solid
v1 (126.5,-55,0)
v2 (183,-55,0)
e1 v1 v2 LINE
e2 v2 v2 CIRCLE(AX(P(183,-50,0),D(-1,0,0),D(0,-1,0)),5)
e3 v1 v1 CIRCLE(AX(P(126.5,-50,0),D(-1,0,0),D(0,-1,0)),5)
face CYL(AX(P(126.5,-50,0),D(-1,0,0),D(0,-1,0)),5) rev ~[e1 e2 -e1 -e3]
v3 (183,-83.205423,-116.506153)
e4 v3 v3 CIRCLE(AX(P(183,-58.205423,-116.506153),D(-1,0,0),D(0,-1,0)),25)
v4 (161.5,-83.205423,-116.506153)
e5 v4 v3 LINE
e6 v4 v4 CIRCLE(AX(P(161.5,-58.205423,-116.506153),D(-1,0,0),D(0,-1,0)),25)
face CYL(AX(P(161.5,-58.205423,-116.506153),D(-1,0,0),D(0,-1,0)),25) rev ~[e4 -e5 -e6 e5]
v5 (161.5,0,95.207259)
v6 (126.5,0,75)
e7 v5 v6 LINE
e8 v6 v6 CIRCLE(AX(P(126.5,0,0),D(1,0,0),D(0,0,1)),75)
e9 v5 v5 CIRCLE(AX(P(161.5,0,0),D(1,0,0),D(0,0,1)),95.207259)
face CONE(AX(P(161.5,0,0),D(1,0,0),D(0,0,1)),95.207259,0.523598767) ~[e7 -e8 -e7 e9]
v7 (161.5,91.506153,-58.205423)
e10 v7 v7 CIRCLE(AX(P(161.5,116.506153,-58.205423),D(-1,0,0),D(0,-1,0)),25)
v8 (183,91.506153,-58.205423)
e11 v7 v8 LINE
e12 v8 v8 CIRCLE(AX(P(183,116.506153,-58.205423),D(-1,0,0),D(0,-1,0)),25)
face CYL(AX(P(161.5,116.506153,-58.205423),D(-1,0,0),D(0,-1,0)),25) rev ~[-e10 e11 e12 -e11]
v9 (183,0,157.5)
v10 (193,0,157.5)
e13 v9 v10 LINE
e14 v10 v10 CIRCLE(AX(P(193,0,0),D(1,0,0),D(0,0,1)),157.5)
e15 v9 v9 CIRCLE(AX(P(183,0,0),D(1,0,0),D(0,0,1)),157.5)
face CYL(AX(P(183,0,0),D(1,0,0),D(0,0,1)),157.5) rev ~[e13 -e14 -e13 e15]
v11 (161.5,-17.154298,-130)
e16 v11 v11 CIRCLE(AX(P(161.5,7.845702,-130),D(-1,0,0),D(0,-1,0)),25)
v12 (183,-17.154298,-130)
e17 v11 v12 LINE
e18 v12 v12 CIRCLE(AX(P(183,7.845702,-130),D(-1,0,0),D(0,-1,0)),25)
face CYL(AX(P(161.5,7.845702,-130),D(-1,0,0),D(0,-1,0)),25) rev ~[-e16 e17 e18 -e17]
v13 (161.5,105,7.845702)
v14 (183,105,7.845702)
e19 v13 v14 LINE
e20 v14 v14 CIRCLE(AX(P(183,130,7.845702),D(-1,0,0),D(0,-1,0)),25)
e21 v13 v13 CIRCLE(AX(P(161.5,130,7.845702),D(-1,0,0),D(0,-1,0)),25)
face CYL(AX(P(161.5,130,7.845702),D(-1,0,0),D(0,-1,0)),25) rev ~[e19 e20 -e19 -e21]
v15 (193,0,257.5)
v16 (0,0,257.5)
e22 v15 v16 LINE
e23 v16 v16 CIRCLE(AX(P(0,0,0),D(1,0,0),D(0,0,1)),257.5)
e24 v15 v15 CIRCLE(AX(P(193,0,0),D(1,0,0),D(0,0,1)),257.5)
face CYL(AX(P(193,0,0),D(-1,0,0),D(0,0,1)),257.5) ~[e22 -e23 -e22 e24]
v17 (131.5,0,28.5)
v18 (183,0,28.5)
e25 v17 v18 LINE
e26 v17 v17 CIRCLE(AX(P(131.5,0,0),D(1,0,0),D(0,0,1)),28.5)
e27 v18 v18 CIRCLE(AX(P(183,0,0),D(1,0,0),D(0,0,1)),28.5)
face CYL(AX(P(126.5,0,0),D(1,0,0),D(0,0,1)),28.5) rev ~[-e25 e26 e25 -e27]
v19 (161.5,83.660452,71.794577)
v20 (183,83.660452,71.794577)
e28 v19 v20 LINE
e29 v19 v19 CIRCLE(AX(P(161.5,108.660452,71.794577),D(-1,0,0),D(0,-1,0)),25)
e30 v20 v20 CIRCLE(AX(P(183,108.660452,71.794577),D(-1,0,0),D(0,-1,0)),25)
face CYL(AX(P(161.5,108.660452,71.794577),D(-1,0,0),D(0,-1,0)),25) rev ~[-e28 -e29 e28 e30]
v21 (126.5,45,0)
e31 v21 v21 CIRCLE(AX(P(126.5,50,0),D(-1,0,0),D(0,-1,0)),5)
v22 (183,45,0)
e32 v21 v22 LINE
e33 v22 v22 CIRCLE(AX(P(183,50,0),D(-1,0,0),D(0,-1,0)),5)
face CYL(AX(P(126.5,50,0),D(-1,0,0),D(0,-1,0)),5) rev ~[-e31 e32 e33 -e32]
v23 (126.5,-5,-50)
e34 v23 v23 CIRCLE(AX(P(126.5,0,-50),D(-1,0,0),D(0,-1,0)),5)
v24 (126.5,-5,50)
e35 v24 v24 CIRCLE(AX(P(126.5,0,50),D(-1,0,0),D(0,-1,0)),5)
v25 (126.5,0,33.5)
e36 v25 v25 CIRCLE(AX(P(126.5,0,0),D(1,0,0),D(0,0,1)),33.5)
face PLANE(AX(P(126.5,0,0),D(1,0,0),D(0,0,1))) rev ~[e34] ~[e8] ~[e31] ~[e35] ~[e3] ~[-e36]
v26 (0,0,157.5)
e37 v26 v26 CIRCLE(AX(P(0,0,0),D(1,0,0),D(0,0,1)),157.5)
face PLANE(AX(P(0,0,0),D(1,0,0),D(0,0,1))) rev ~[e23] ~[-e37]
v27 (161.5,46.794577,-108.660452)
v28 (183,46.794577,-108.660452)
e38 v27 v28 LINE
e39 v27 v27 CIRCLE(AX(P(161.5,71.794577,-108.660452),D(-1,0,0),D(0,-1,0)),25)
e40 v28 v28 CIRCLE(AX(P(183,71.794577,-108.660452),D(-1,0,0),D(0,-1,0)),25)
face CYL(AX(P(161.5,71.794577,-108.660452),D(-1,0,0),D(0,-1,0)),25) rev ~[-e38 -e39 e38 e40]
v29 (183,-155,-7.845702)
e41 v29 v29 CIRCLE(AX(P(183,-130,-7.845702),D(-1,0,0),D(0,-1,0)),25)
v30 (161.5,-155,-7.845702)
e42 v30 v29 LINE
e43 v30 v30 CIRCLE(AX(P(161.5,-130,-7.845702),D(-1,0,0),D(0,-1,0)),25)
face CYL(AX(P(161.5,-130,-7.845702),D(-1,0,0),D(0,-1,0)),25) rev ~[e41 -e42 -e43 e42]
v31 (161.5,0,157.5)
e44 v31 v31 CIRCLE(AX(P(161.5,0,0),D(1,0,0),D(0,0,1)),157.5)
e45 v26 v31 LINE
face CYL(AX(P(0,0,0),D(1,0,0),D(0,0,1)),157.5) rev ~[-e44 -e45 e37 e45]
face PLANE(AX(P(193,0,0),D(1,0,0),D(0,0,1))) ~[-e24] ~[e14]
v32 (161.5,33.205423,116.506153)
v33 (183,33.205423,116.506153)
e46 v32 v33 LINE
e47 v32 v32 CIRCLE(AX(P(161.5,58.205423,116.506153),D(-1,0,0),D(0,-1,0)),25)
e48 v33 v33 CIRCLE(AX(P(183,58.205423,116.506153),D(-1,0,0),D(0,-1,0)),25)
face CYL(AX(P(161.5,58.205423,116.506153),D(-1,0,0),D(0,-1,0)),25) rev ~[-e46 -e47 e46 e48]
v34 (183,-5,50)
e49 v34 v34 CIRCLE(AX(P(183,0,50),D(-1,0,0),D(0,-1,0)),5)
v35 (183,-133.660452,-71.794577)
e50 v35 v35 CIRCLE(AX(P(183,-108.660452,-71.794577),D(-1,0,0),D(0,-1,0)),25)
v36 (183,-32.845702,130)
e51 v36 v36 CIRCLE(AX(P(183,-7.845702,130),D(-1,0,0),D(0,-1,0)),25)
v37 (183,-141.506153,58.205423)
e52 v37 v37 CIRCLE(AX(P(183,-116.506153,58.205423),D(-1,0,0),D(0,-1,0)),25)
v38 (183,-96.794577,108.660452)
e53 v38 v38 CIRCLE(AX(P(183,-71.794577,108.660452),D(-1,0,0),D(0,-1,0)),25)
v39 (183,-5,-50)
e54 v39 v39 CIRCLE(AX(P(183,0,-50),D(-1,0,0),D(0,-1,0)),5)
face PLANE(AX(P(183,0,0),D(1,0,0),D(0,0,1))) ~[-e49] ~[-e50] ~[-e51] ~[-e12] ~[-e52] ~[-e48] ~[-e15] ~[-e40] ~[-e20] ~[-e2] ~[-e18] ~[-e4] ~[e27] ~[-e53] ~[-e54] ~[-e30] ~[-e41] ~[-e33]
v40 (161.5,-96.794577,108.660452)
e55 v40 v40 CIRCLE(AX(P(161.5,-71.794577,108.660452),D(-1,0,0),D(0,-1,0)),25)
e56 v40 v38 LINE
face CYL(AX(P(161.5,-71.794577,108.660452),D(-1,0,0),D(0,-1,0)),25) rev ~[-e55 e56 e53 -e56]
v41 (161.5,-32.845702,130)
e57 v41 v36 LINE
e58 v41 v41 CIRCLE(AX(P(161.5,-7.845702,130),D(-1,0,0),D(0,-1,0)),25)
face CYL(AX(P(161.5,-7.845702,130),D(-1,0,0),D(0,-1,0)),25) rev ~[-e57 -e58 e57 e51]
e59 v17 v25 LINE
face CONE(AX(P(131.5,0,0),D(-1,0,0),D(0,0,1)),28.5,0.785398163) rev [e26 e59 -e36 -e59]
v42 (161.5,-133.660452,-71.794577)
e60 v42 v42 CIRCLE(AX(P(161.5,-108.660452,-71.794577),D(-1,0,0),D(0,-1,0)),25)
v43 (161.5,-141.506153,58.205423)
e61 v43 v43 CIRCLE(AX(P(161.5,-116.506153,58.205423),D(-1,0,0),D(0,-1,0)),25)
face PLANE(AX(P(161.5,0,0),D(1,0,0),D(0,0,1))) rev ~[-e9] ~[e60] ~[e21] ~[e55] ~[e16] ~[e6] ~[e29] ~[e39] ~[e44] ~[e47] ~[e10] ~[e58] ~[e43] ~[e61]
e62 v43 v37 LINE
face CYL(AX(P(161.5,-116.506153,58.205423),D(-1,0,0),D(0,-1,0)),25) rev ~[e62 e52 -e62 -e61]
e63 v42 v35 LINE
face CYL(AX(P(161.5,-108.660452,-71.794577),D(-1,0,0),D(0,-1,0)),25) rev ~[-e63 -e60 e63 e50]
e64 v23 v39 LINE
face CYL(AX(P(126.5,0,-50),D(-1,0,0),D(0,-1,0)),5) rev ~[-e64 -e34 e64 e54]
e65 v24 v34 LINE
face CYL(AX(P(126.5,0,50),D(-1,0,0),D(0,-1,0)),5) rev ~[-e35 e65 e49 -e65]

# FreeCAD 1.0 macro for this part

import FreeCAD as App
import Part
import Sketcher

V = App.Vector
Q = App.Units.Quantity


def edges_at(feature, points):
    """Names of the edges that pass closest to the given points."""
    edges = feature.Shape.Edges
    near = lambda p: min(range(len(edges)), key=lambda i: edges[i].distToShape(Part.Vertex(*p))[0])
    return sorted({f"Edge{near(p) + 1}" for p in points})


def add_polygon(sketch, points):
    """Adds a closed chain of lines whose ends are joined by coincident constraints."""
    first, n = sketch.GeometryCount, len(points)
    for a, b in zip(points, points[1:] + points[:1]):
        sketch.addGeometry(Part.LineSegment(App.Vector(*a, 0), App.Vector(*b, 0)), False)
    for i in range(n):
        sketch.addConstraint(Sketcher.Constraint("Coincident", first + i, 2, first + (i + 1) % n, 1))

doc = App.newDocument("Part")
body = doc.addObject("PartDesign::Body", "Body")

sketch1 = body.newObject("Sketcher::SketchObject", "Sketch")
sketch1.AttachmentSupport = (doc.getObject("XZ_Plane"), [""])
sketch1.MapMode = "FlatFace"
add_polygon(sketch1, [(193, 157.5), (193, 257.5), (0, 257.5), (0, 157.5), (161.5, 157.5), (161.5, 95.207259), (126.5, 75), (126.5, 28.5), (183, 28.5), (183, 157.5)])
sketch1.addConstraint([
    Sketcher.Constraint("Vertical", 0),
    Sketcher.Constraint("Horizontal", 1),
    Sketcher.Constraint("Vertical", 2),
    Sketcher.Constraint("Horizontal", 3),
    Sketcher.Constraint("Vertical", 4),
    Sketcher.Constraint("Vertical", 6),
    Sketcher.Constraint("Horizontal", 7),
    Sketcher.Constraint("Vertical", 8),
    Sketcher.Constraint("Horizontal", 9),
    Sketcher.Constraint("PointOnObject", 1, 2, -2),
    Sketcher.Constraint("Horizontal", 3, 2, 8, 2),
    Sketcher.Constraint("DistanceX", 1, 2, 1, 1, 193.0),
    Sketcher.Constraint("DistanceX", 9, 1, 9, 2, 10.0),
    Sketcher.Constraint("DistanceY", 0, 1, 0, 2, 100.0),
    Sketcher.Constraint("DistanceY", 8, 1, 8, 2, 129.0),
    Sketcher.Constraint("Angle", 5, Q("-150.000001 deg")),
    Sketcher.Constraint("DistanceX", 3, 1, 3, 2, 161.5),
    Sketcher.Constraint("DistanceX", 7, 1, 7, 2, 56.5),
    Sketcher.Constraint("DistanceY", 6, 2, 6, 1, 46.5),
    Sketcher.Constraint("DistanceY", -1, 1, 5, 2, 75.0),
])
revolution = body.newObject("PartDesign::Revolution", "Revolution")
revolution.Profile = sketch1
revolution.ReferenceAxis = (sketch1, ["H_Axis"])
revolution.Angle = 360

sketch2 = body.newObject("Sketcher::SketchObject", "Sketch001")
sketch2.AttachmentSupport = (doc.getObject("YZ_Plane"), [""])
sketch2.MapMode = "FlatFace"
sketch2.AttachmentOffset = App.Placement(V(0, 0, 161.5), App.Rotation())
sketch2.addGeometry([
    Part.Circle(V(-7.845702, 130, 0), V(0, 0, 1), 25),
    Part.Circle(V(58.205423, 116.506153, 0), V(0, 0, 1), 25),
    Part.Circle(V(108.660452, 71.794577, 0), V(0, 0, 1), 25),
    Part.Circle(V(130, 7.845702, 0), V(0, 0, 1), 25),
    Part.Circle(V(116.506153, -58.205423, 0), V(0, 0, 1), 25),
    Part.Circle(V(71.794577, -108.660452, 0), V(0, 0, 1), 25),
    Part.Circle(V(7.845702, -130, 0), V(0, 0, 1), 25),
    Part.Circle(V(-58.205423, -116.506153, 0), V(0, 0, 1), 25),
    Part.Circle(V(-108.660452, -71.794577, 0), V(0, 0, 1), 25),
    Part.Circle(V(-130, -7.845702, 0), V(0, 0, 1), 25),
    Part.Circle(V(-116.506153, 58.205423, 0), V(0, 0, 1), 25),
    Part.Circle(V(-71.794577, 108.660452, 0), V(0, 0, 1), 25),
], False)
sketch2.addConstraint([
    Sketcher.Constraint("Equal", 0, 1),
    Sketcher.Constraint("Equal", 1, 2),
    Sketcher.Constraint("Equal", 2, 3),
    Sketcher.Constraint("Equal", 3, 4),
    Sketcher.Constraint("Equal", 4, 5),
    Sketcher.Constraint("Equal", 5, 6),
    Sketcher.Constraint("Equal", 6, 7),
    Sketcher.Constraint("Equal", 7, 8),
    Sketcher.Constraint("Equal", 8, 9),
    Sketcher.Constraint("Equal", 9, 10),
    Sketcher.Constraint("Equal", 10, 11),
    Sketcher.Constraint("Symmetric", 0, 3, 6, 3, -1, 1),
    Sketcher.Constraint("Symmetric", 1, 3, 7, 3, -1, 1),
    Sketcher.Constraint("Symmetric", 2, 3, 8, 3, -1, 1),
    Sketcher.Constraint("Symmetric", 3, 3, 9, 3, -1, 1),
    Sketcher.Constraint("Symmetric", 4, 3, 10, 3, -1, 1),
    Sketcher.Constraint("Symmetric", 5, 3, 11, 3, -1, 1),
    Sketcher.Constraint("Diameter", 0, 50.0),
    Sketcher.Constraint("DistanceY", -1, 1, 0, 3, 130.0),
    Sketcher.Constraint("DistanceX", -1, 1, 3, 3, 130.0),
    Sketcher.Constraint("DistanceY", 4, 3, 2, 3, 130.0),
    Sketcher.Constraint("DistanceX", 7, 3, 5, 3, 130.0),
    Sketcher.Constraint("DistanceX", 0, 3, 3, 3, 137.845702),
    Sketcher.Constraint("DistanceX", 2, 3, 4, 3, 7.845701),
    Sketcher.Constraint("DistanceY", 6, 3, 3, 3, 137.845702),
    Sketcher.Constraint("DistanceY", 7, 3, 5, 3, 7.845701),
    Sketcher.Constraint("DistanceX", 1, 3, 2, 3, 50.455029),
    Sketcher.Constraint("DistanceY", 3, 3, 1, 3, 108.660451),
    Sketcher.Constraint("DistanceY", 5, 3, 4, 3, 50.455029),
    Sketcher.Constraint("DistanceX", 0, 3, 5, 3, 79.640279),
])
pocket1 = body.newObject("PartDesign::Pocket", "Pocket")
pocket1.Profile = sketch2
pocket1.Length = 25
pocket1.Reversed = True

sketch3 = body.newObject("Sketcher::SketchObject", "Sketch002")
sketch3.AttachmentSupport = (doc.getObject("YZ_Plane"), [""])
sketch3.MapMode = "FlatFace"
sketch3.AttachmentOffset = App.Placement(V(0, 0, 126.5), App.Rotation())
sketch3.addGeometry([
    Part.Circle(V(0, 50, 0), V(0, 0, 1), 5),
    Part.Circle(V(50, 0, 0), V(0, 0, 1), 5),
    Part.Circle(V(0, -50, 0), V(0, 0, 1), 5),
    Part.Circle(V(-50, 0, 0), V(0, 0, 1), 5),
], False)
sketch3.addConstraint([
    Sketcher.Constraint("Equal", 0, 1),
    Sketcher.Constraint("Equal", 1, 2),
    Sketcher.Constraint("Equal", 2, 3),
    Sketcher.Constraint("Symmetric", 0, 3, 2, 3, -1, 1),
    Sketcher.Constraint("Symmetric", 1, 3, 3, 3, -1, 1),
    Sketcher.Constraint("PointOnObject", 0, 3, -2),
    Sketcher.Constraint("PointOnObject", 1, 3, -1),
    Sketcher.Constraint("Diameter", 0, 10.0),
    Sketcher.Constraint("DistanceY", -1, 1, 0, 3, 50.0),
    Sketcher.Constraint("DistanceX", -1, 1, 1, 3, 50.0),
])
pocket2 = body.newObject("PartDesign::Pocket", "Pocket001")
pocket2.Profile = sketch3
pocket2.Type = "ThroughAll"
pocket2.Reversed = True
doc.recompute()

chamfer = body.newObject("PartDesign::Chamfer", "Chamfer")
chamfer.Base = (pocket2, edges_at(pocket2, [(126.5, 0, -28.5)]))
chamfer.Size = 5

doc.recompute()
